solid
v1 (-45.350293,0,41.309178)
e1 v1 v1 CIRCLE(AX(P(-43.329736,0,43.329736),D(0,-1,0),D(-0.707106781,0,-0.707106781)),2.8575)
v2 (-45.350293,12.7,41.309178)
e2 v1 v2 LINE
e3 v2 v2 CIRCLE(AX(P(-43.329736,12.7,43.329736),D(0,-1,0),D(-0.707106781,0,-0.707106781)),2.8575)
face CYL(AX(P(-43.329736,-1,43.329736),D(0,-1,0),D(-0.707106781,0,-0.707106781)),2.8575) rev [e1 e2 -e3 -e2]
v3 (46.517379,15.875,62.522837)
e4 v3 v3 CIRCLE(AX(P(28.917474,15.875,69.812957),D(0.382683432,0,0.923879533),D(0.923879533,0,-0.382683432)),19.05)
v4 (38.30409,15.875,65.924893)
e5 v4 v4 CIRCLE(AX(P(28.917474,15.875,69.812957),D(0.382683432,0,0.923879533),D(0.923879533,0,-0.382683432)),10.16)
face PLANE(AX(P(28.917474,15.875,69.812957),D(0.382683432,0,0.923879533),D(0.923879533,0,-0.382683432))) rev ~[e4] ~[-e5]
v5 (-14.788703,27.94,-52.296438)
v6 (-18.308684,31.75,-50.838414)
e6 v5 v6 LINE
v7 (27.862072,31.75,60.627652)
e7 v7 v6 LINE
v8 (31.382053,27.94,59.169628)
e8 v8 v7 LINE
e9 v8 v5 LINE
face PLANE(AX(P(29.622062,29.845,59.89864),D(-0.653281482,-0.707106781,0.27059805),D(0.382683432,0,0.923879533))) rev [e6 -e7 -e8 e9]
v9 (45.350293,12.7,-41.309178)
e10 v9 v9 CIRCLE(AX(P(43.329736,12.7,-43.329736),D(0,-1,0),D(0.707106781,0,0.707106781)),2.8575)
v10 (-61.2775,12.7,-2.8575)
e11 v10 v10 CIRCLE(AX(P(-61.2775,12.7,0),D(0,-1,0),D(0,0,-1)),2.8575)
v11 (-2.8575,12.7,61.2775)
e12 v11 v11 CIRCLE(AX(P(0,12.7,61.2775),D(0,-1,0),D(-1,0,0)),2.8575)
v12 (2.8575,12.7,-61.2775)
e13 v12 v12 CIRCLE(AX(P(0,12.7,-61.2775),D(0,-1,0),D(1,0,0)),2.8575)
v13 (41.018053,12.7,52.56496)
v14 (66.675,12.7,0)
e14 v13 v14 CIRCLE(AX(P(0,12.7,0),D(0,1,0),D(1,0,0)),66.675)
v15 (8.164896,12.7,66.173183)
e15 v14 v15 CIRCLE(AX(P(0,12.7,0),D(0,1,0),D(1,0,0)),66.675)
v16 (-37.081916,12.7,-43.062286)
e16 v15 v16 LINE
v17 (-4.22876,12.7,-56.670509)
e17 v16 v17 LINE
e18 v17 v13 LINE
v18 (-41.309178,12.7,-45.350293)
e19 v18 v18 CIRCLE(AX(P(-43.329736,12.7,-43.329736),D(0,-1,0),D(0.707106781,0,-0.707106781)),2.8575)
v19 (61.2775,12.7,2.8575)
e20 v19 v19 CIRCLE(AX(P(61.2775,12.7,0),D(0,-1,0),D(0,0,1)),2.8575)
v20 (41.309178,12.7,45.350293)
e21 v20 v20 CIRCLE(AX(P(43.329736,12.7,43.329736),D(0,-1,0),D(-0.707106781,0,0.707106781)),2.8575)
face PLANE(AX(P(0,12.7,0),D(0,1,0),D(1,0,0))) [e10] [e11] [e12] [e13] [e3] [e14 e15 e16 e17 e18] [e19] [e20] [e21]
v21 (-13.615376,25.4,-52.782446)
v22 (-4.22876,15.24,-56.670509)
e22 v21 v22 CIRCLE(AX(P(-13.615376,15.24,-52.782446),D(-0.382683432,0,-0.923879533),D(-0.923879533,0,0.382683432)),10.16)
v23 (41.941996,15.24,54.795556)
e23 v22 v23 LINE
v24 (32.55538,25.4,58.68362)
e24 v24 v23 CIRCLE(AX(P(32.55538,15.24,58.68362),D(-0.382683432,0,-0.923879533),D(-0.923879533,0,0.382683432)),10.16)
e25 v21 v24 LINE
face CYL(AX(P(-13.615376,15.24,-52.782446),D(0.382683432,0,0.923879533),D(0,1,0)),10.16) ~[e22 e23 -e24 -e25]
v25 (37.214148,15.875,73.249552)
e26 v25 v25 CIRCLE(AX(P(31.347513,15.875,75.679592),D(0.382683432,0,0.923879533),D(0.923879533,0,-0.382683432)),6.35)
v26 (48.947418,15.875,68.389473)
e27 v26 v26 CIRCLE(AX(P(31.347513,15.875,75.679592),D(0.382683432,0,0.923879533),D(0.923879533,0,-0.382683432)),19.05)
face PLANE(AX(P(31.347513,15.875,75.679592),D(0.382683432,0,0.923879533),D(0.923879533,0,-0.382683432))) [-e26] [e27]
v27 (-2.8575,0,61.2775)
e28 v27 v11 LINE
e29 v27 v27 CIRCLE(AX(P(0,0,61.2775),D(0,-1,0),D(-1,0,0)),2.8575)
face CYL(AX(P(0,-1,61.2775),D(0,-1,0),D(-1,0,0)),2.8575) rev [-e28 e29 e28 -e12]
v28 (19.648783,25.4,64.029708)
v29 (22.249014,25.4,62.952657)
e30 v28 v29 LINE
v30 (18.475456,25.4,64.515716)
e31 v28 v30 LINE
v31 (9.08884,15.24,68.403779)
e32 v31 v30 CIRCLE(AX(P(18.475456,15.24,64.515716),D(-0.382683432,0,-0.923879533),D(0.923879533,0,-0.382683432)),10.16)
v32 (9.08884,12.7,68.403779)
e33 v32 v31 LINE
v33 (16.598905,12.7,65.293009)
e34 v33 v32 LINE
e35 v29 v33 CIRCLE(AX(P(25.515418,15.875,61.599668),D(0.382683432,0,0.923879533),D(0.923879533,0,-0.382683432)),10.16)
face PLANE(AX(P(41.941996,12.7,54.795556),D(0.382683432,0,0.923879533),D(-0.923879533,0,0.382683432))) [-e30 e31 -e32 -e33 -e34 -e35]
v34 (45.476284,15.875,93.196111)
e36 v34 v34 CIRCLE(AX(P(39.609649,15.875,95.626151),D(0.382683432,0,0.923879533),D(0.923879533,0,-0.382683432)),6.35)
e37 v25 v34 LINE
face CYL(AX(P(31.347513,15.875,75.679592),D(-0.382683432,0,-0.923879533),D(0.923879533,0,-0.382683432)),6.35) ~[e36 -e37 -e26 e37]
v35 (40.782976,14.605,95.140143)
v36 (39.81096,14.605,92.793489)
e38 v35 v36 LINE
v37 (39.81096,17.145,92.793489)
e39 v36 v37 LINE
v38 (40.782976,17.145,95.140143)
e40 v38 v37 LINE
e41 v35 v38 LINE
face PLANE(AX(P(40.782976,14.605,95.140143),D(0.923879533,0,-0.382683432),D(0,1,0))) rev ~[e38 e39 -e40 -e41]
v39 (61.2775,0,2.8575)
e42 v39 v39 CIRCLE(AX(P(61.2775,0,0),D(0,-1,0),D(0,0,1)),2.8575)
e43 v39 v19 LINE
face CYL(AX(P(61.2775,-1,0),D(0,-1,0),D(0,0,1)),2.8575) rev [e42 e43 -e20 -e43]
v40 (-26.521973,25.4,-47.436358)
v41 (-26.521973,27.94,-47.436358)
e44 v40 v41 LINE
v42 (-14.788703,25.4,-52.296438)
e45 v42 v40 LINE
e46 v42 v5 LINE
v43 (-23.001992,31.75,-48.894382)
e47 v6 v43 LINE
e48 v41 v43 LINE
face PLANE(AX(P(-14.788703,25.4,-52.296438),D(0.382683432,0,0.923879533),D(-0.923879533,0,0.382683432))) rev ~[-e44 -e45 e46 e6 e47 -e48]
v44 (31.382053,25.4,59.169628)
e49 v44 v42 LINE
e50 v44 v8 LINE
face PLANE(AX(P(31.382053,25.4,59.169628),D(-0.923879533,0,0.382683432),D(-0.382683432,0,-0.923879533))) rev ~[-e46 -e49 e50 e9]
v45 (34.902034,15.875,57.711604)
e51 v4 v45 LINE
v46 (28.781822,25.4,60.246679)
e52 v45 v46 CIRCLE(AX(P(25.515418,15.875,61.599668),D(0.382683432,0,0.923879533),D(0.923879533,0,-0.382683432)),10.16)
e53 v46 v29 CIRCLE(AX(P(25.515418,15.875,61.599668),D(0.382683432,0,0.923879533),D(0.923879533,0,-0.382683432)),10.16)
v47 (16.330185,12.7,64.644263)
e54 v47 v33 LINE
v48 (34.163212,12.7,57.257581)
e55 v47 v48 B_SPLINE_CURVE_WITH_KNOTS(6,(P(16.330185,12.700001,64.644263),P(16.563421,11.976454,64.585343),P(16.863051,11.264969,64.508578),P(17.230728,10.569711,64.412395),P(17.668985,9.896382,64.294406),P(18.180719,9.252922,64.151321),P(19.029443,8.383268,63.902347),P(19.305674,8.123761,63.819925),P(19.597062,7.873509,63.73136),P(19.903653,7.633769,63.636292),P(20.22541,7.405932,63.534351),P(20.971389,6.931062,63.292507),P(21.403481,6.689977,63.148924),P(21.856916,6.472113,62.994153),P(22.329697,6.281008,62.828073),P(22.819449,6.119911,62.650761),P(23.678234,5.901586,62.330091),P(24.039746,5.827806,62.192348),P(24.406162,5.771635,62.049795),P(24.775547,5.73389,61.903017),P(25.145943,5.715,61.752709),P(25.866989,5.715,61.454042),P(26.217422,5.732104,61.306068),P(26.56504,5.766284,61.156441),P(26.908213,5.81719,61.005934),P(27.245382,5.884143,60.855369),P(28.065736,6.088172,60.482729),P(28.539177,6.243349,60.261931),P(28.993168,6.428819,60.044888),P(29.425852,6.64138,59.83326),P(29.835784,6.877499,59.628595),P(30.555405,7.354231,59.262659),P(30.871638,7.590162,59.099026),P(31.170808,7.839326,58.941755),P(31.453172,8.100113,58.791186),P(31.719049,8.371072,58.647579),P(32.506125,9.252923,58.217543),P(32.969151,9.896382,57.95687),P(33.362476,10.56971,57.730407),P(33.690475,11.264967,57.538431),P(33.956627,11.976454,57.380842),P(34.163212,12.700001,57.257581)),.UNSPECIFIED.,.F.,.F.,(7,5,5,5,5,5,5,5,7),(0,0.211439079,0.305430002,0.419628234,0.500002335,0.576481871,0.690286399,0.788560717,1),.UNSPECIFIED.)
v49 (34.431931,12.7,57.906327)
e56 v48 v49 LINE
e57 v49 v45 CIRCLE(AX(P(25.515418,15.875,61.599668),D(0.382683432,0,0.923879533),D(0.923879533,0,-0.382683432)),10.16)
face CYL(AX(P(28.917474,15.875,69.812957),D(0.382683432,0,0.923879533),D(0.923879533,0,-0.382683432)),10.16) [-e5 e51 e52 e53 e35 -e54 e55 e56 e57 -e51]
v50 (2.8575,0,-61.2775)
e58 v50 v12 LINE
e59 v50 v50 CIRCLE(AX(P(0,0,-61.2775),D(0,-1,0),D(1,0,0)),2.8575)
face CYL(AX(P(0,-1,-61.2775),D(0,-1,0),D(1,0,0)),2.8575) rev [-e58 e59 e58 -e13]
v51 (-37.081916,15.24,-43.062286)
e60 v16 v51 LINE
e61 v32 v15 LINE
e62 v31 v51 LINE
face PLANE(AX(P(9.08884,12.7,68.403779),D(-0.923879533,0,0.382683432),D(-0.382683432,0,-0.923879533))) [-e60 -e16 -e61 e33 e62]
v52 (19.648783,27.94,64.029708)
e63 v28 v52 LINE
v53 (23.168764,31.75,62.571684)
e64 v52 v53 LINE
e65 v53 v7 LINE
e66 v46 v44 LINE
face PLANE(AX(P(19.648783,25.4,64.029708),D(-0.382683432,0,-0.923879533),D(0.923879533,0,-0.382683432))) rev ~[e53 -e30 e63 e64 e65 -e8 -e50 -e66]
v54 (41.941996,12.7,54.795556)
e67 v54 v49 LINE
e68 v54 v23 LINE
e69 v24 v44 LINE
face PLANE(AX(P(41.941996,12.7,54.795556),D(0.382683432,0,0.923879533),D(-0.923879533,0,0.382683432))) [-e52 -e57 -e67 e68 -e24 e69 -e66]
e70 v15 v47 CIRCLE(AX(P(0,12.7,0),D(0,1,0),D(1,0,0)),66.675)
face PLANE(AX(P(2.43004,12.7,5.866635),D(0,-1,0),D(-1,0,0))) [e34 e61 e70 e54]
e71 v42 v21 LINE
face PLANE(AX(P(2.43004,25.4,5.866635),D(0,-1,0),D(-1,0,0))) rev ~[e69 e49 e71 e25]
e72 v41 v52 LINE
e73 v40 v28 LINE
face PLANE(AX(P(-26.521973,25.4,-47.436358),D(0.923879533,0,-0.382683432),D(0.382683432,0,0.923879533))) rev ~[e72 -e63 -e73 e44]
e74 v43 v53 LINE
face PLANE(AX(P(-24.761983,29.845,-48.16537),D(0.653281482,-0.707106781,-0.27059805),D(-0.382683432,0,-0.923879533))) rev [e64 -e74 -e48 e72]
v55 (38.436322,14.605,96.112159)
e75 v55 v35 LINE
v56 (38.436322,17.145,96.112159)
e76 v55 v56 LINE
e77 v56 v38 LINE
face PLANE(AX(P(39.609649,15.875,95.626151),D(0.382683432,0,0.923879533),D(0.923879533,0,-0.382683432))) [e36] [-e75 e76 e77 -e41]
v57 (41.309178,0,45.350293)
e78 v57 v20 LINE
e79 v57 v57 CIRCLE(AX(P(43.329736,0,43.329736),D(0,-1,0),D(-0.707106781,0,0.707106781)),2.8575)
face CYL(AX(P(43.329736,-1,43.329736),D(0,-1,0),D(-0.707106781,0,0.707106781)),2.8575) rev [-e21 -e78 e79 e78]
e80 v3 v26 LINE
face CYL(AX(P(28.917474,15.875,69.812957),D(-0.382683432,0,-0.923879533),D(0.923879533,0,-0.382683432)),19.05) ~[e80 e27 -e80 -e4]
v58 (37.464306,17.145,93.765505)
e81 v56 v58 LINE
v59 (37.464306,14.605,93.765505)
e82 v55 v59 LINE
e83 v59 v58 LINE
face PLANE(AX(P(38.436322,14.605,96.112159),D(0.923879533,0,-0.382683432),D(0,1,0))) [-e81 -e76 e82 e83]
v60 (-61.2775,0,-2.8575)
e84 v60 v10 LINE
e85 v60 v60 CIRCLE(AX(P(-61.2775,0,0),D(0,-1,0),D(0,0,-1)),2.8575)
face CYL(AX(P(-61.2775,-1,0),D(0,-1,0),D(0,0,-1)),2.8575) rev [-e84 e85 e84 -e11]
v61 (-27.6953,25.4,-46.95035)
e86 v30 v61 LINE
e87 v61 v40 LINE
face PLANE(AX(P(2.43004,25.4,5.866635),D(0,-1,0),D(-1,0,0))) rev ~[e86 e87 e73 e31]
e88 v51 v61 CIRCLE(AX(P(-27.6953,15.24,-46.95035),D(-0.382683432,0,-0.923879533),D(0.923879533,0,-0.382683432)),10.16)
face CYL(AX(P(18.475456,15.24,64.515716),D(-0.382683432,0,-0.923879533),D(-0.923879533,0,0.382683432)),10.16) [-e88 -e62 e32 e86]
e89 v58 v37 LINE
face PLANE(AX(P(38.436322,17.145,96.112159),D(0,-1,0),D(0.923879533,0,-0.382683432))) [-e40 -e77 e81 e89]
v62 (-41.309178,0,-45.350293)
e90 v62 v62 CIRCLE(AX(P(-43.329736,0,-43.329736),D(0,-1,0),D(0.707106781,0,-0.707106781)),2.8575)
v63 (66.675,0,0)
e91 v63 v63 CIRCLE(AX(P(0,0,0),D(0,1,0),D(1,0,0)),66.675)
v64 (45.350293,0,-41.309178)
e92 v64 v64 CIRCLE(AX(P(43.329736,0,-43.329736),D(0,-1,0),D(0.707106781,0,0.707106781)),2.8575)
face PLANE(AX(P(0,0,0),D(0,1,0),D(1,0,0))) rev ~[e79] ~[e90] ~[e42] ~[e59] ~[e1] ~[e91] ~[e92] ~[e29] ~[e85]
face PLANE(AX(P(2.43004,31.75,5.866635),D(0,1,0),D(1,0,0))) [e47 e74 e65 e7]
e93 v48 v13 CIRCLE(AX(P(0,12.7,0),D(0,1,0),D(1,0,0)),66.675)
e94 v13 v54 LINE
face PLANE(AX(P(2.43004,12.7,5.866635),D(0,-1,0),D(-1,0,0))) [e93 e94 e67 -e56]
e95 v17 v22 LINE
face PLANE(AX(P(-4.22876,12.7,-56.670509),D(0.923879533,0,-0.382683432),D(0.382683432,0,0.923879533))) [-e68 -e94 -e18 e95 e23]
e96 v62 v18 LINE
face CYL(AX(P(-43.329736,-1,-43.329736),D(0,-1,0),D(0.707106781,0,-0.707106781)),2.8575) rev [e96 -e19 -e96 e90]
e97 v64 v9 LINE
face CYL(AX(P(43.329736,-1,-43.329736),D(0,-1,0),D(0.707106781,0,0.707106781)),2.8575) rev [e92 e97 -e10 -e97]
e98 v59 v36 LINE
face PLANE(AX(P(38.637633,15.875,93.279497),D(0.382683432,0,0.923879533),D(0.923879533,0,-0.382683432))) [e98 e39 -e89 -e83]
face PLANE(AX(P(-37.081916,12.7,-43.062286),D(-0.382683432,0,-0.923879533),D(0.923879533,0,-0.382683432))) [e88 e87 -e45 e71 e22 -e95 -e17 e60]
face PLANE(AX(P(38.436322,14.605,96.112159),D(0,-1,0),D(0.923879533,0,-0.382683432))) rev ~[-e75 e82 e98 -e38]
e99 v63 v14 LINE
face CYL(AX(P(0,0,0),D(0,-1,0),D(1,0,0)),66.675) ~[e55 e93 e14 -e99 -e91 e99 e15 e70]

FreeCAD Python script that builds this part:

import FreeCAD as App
import Part
import Sketcher

V = App.Vector
Q = App.Units.Quantity


def edges_at(feature, points):
    """Names of the edges that pass closest to the given points."""
    edges = feature.Shape.Edges
    near = lambda p: min(range(len(edges)), key=lambda i: edges[i].distToShape(Part.Vertex(*p))[0])
    return sorted({f"Edge{near(p) + 1}" for p in points})


def add_polygon(sketch, points):
    """Adds a closed chain of lines whose ends are joined by coincident constraints."""
    first, n = sketch.GeometryCount, len(points)
    for a, b in zip(points, points[1:] + points[:1]):
        sketch.addGeometry(Part.LineSegment(App.Vector(*a, 0), App.Vector(*b, 0)), False)
    for i in range(n):
        sketch.addConstraint(Sketcher.Constraint("Coincident", first + i, 2, first + (i + 1) % n, 1))

doc = App.newDocument("Part")
body = doc.addObject("PartDesign::Body", "Body")

# Sketch on XZ plane
sketch1 = doc.addObject("Sketcher::SketchObject", "Sketch")
body.addObject(sketch1)
sketch1.AttachmentSupport = (doc.XZ_Plane, [""])
sketch1.MapMode = "FlatFace"
sketch1.addGeometry(Part.Circle(V(0, 0, 0), V(0, 0, 1), 67), False)
sketch1.addConstraint([
    Sketcher.Constraint("Coincident", 0, 3, -1, 1),
    Sketcher.Constraint("Diameter", 0, Q("5.25 in")),
])
pad1 = doc.addObject("PartDesign::Pad", "Pad")
body.addObject(pad1)
pad1.Profile = sketch1
pad1.Length = Q("0.5 in")
pad1.Reversed = True

# Sketch on XZ plane
sketch2 = doc.addObject("Sketcher::SketchObject", "Sketch001")
body.addObject(sketch2)
sketch2.AttachmentSupport = (doc.XZ_Plane, [""])
sketch2.MapMode = "FlatFace"
sketch2.AttachmentOffset = App.Placement(V(0, 0, 1), App.Rotation())
sketch2.addGeometry(Part.Circle(V(0, -61.3, 0), V(0, 0, 1), 2.9), False)
sketch2.addConstraint([
    Sketcher.Constraint("PointOnObject", 0, 3, -2),
    Sketcher.Constraint("Diameter", 0, Q("0.225 in")),
    Sketcher.Constraint("DistanceY", 0, 3, -1, 1, Q("2.4125 in")),
])
pocket1 = doc.addObject("PartDesign::Pocket", "Pocket")
body.addObject(pocket1)
pocket1.Profile = sketch2
pocket1.Length = 14.7
doc.recompute()

polarpattern = doc.addObject("PartDesign::PolarPattern", "PolarPattern")
body.addObject(polarpattern)
polarpattern.Originals = [pocket1]
polarpattern.Axis = (doc.Y_Axis, [""])
polarpattern.Angle = 360
polarpattern.Occurrences = 8
body.Tip = polarpattern

# Sketch on XZ plane
sketch3 = doc.addObject("Sketcher::SketchObject", "Sketch002")
body.addObject(sketch3)
sketch3.AttachmentSupport = (doc.XZ_Plane, [""])
sketch3.MapMode = "FlatFace"
sketch3.AttachmentOffset = App.Placement(V(0, 0, -0.5 * 25.4), App.Rotation())
add_polygon(sketch3, [(-4, -57), (-37, -43), (9, 68), (42, 55)])  # lines 0-3
sketch3.addConstraint([
    Sketcher.Constraint("Perpendicular", 0, 1),
    Sketcher.Constraint("Perpendicular", 1, 2),
    Sketcher.Constraint("Perpendicular", 2, 3),
    Sketcher.Constraint("Distance", 0, Q("1.4 in")),
    Sketcher.Constraint("Angle", 0, Q("157.5 deg")),
    Sketcher.Constraint("Distance", 1, Q("4.75 in")),
    Sketcher.Constraint("DistanceX", -1, 1, 1, 2, Q("9.08884 mm")),
    Sketcher.Constraint("DistanceY", -1, 1, 1, 2, Q("68.403779 mm")),
])
pad2 = doc.addObject("PartDesign::Pad", "Pad001")
body.addObject(pad2)
pad2.Profile = sketch3
pad2.Length = Q("0.5 in")
pad2.Reversed = True

# Sketch on XZ plane
sketch4 = doc.addObject("Sketcher::SketchObject", "Sketch003")
body.addObject(sketch4)
sketch4.AttachmentSupport = (doc.XZ_Plane, [""])
sketch4.MapMode = "FlatFace"
sketch4.AttachmentOffset = App.Placement(V(0, 0, -1 * 25.4), App.Rotation())
add_polygon(sketch4, [(-27, -47), (20, 64), (31, 59), (-15, -52)])  # lines 0-3
sketch4.addConstraint([
    Sketcher.Constraint("Perpendicular", 0, 1),
    Sketcher.Constraint("Perpendicular", 1, 2),
    Sketcher.Constraint("Perpendicular", 2, 3),
    Sketcher.Constraint("Distance", 1, Q("0.5 in")),
    Sketcher.Constraint("Angle", 0, Q("67.5 deg")),
    Sketcher.Constraint("Distance", 0, Q("4.75 in")),
    Sketcher.Constraint("DistanceY", -1, 1, 1, 2, Q("59.169628 mm")),
    Sketcher.Constraint("DistanceX", -1, 1, 0, 2, Q("19.648783 mm")),
])
pad3 = doc.addObject("PartDesign::Pad", "Pad002")
body.addObject(pad3)
pad3.Profile = sketch4
pad3.Length = Q("0.25 in")
pad3.Reversed = True
doc.recompute()

chamfer = doc.addObject("PartDesign::Chamfer", "Chamfer")
body.addObject(chamfer)
chamfer.Base = (pad3, edges_at(pad3, [(-3.437, 31.75, 8.297), (8.297, 31.75, 3.437)]))
chamfer.Size = Q("0.15 in")
doc.recompute()

fillet = doc.addObject("PartDesign::Fillet", "Fillet")
body.addObject(fillet)
fillet.Base = (chamfer, edges_at(chamfer, [(18.857, 25.4, -0.937), (-13.997, 25.4, 12.671)]))
fillet.Radius = Q("0.4 in")

# Sketch on an angled plane
sketch5 = doc.addObject("Sketcher::SketchObject", "Sketch004")
body.addObject(sketch5)
sketch5.Placement = App.Placement(V(28.917474, 0, 69.812957), App.Rotation(V(0.923879533, 0, -0.382683432), V(0, 1.000000001, 0), V(0.382683432, 0, 0.923879533), "ZXY"))
sketch5.addGeometry(Part.Circle(V(0, 16, 0), V(0, 0, 1), 10), False)
sketch5.addConstraint([
    Sketcher.Constraint("PointOnObject", 0, 3, -2),
    Sketcher.Constraint("Diameter", 0, Q("0.8 in")),
    Sketcher.Constraint("DistanceY", -1, 1, 0, 3, Q("0.625 in")),
])
pad4 = doc.addObject("PartDesign::Pad", "Pad003")
body.addObject(pad4)
pad4.Profile = sketch5
pad4.Length = Q("0.4 in")
pad4.Reversed = True

# Sketch on an angled plane
sketch6 = doc.addObject("Sketcher::SketchObject", "Sketch005")
body.addObject(sketch6)
sketch6.Placement = App.Placement(V(28.917474, 0, 69.812957), App.Rotation(V(0.923879533, 0, -0.382683432), V(0, 1.000000001, 0), V(0.382683432, 0, 0.923879533), "ZXY"))
sketch6.addGeometry(Part.Circle(V(0, 16, 0), V(0, 0, 1), 19), False)
sketch6.addConstraint([
    Sketcher.Constraint("PointOnObject", 0, 3, -2),
    Sketcher.Constraint("Diameter", 0, Q("1.5 in")),
    Sketcher.Constraint("DistanceY", -1, 1, 0, 3, Q("0.625 in")),
])
pad5 = doc.addObject("PartDesign::Pad", "Pad004")
body.addObject(pad5)
pad5.Profile = sketch6
pad5.Length = Q("0.25 in")

# Sketch on an angled plane
sketch7 = doc.addObject("Sketcher::SketchObject", "Sketch006")
body.addObject(sketch7)
sketch7.Placement = App.Placement(V(31.347513, 0, 75.679592), App.Rotation(V(0.923879533, 0, -0.382683432), V(0, 1.000000001, 0), V(0.382683432, 0, 0.923879533), "ZXY"))
sketch7.addGeometry(Part.Circle(V(0, 16, 0), V(0, 0, 1), 6), False)
sketch7.addConstraint([
    Sketcher.Constraint("PointOnObject", 0, 3, -2),
    Sketcher.Constraint("Diameter", 0, Q("0.5 in")),
    Sketcher.Constraint("DistanceY", -1, 1, 0, 3, Q("0.625 in")),
])
pad6 = doc.addObject("PartDesign::Pad", "Pad005")
body.addObject(pad6)
pad6.Profile = sketch7
pad6.Length = Q("0.85 in")

# Sketch on an angled plane
sketch8 = doc.addObject("Sketcher::SketchObject", "Sketch007")
body.addObject(sketch8)
sketch8.Placement = App.Placement(V(39.609649, 0, 95.626151), App.Rotation(V(0.923879533, 0, -0.382683432), V(0, 1.000000001, 0), V(0.382683432, 0, 0.923879533), "ZXY"))
add_polygon(sketch8, [(-1.3, 17.1), (-1.3, 14.6), (1.3, 14.6), (1.3, 17.1)])  # lines 0-3
sketch8.addConstraint([
    Sketcher.Constraint("Vertical", 0),
    Sketcher.Constraint("Horizontal", 1),
    Sketcher.Constraint("Vertical", 2),
    Sketcher.Constraint("Horizontal", 3),
    Sketcher.Constraint("Equal", 3, 0),
    Sketcher.Constraint("DistanceX", 1, 1, 1, 2, Q("0.1 in")),
    Sketcher.Constraint("DistanceX", 0, 2, -1, 1, Q("0.05 in")),
    Sketcher.Constraint("DistanceY", -1, 1, 0, 2, Q("0.575 in")),
])
pocket2 = doc.addObject("PartDesign::Pocket", "Pocket001")
body.addObject(pocket2)
pocket2.Profile = sketch8
pocket2.Length = Q("0.1 in")

doc.recompute()
